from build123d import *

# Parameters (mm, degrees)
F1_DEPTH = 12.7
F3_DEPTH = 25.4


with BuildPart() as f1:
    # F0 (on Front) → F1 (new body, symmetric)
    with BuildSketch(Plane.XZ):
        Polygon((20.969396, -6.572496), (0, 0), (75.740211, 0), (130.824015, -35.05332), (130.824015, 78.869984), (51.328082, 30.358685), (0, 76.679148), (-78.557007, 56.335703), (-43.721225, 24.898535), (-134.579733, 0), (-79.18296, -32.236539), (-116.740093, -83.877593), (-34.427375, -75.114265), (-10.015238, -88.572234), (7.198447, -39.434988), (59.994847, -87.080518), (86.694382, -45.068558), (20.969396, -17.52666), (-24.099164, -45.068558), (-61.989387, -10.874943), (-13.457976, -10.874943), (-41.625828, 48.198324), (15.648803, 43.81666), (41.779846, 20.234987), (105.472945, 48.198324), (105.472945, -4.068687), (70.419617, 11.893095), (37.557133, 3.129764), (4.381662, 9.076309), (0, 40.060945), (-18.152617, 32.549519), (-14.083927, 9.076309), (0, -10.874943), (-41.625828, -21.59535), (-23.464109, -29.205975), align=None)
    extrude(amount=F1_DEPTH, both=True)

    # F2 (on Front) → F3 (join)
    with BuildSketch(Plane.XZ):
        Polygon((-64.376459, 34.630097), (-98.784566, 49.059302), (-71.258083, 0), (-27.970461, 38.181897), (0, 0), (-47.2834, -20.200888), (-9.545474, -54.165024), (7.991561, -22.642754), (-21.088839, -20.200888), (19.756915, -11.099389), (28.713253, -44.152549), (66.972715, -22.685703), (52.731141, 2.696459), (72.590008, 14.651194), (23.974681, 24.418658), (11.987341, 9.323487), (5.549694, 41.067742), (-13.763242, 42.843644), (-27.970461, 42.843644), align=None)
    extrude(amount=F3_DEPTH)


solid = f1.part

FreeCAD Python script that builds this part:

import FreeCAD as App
import Part
import Sketcher

V = App.Vector


def add_polygon(sketch, points):
    """Adds a closed chain of lines whose ends are joined by coincident constraints."""
    first, n = sketch.GeometryCount, len(points)
    for a, b in zip(points, points[1:] + points[:1]):
        sketch.addGeometry(Part.LineSegment(App.Vector(*a, 0), App.Vector(*b, 0)), False)
    for i in range(n):
        sketch.addConstraint(Sketcher.Constraint("Coincident", first + i, 2, first + (i + 1) % n, 1))

doc = App.newDocument("Part")
params = doc.addObject("Spreadsheet::Sheet", "Params")
for row, (alias, value) in enumerate([
    ("pad1_length", "1 in"),
    ("pad2_length", "1 in"),
], start=1):
    params.set(f"A{row}", alias)
    params.set(f"B{row}", "=" + value)
    params.setAlias(f"B{row}", alias)

body = doc.addObject("PartDesign::Body", "Body")

sketch1 = body.newObject("Sketcher::SketchObject", "Sketch")
sketch1.AttachmentSupport = (doc.getObject("XZ_Plane"), [""])
sketch1.MapMode = "FlatFace"
add_polygon(sketch1, [(20.969396, -6.572496), (0, 0), (75.740211, 0), (130.824015, -35.05332), (130.824015, 78.869984), (51.328082, 30.358685), (0, 76.679148), (-78.557007, 56.335703), (-43.721225, 24.898535), (-134.579733, 0), (-79.18296, -32.236539), (-116.740093, -83.877593), (-34.427375, -75.114265), (-10.015238, -88.572234), (7.198447, -39.434988), (59.994847, -87.080518), (86.694382, -45.068558), (20.969396, -17.52666), (-24.099164, -45.068558), (-61.989387, -10.874943), (-13.457976, -10.874943), (-41.625828, 48.198324), (15.648803, 43.81666), (41.779846, 20.234987), (105.472945, 48.198324), (105.472945, -4.068687), (70.419617, 11.893095), (37.557133, 3.129764), (4.381662, 9.076309), (0, 40.060945), (-18.152617, 32.549519), (-14.083927, 9.076309), (0, -10.874943), (-41.625828, -21.59535), (-23.464109, -29.205975)])
sketch1.addConstraint(Sketcher.Constraint("Horizontal", 1))
sketch1.addConstraint(Sketcher.Constraint("Vertical", 3))
sketch1.addConstraint(Sketcher.Constraint("Horizontal", 19))
sketch1.addConstraint(Sketcher.Constraint("Vertical", 24))
sketch1.addConstraint(Sketcher.Constraint("Coincident", 0, 2, -1, 1))
sketch1.addConstraint(Sketcher.Constraint("PointOnObject", 5, 2, -2))
sketch1.addConstraint(Sketcher.Constraint("PointOnObject", 8, 2, -1))
sketch1.addConstraint(Sketcher.Constraint("PointOnObject", 28, 2, -2))
sketch1.addConstraint(Sketcher.Constraint("PointOnObject", 31, 2, -2))
sketch1.addConstraint(Sketcher.Constraint("Parallel", 5, 7))
sketch1.addConstraint(Sketcher.Constraint("Parallel", 7, 14))
sketch1.addConstraint(Sketcher.Constraint("Parallel", 14, 18))
sketch1.addConstraint(Sketcher.Constraint("Parallel", 18, 22))
sketch1.addConstraint(Sketcher.Constraint("Parallel", 16, 33))
sketch1.addConstraint(Sketcher.Constraint("Horizontal", 15, 2, 17, 2))
sketch1.addConstraint(Sketcher.Constraint("Horizontal", 20, 2, 23, 2))
sketch1.addConstraint(Sketcher.Constraint("Horizontal", 27, 2, 30, 2))
sketch1.addConstraint(Sketcher.Constraint("Horizontal", 19, 2, 31, 2))
sketch1.addConstraint(Sketcher.Constraint("Vertical", 20, 2, 32, 2))
sketch1.addConstraint(Sketcher.Constraint("Vertical", 16, 2, 34, 2))
sketch1.addConstraint(Sketcher.Constraint("Distance", 14, 71.116499))
sketch1.addConstraint(Sketcher.Constraint("Distance", 16, 71.262402))
sketch1.addConstraint(Sketcher.Constraint("DistanceX", 1, 1, 1, 2, 75.740211))
sketch1.addConstraint(Sketcher.Constraint("DistanceX", 19, 1, 19, 2, 48.531411))
sketch1.addConstraint(Sketcher.Constraint("DistanceY", 24, 2, 24, 1, 52.267011))
sketch1.addConstraint(Sketcher.Constraint("DistanceY", 4, 2, 3, 2, 48.511299))
sketch1.addConstraint(Sketcher.Constraint("DistanceY", 11, 2, 7, 2, 100.0128))
sketch1.addConstraint(Sketcher.Constraint("DistanceX", 13, 2, 14, 2, 52.7964))
sketch1.addConstraint(Sketcher.Constraint("DistanceX", 4, 2, 15, 2, 35.3663))
sketch1.addConstraint(Sketcher.Constraint("DistanceY", 15, 2, 16, 2, 27.541898))
sketch1.addConstraint(Sketcher.Constraint("DistanceY", 22, 2, 4, 2, 10.123698))
sketch1.addConstraint(Sketcher.Constraint("DistanceX", 22, 2, 23, 2, 63.693099))
sketch1.addConstraint(Sketcher.Constraint("DistanceX", 32, 2, 30, 2, 27.541901))
sketch1.addConstraint(Sketcher.Constraint("Distance", 4, 93.128672))
sketch1.addConstraint(Sketcher.Constraint("Distance", 5, 69.138682))
sketch1.addConstraint(Sketcher.Constraint("Distance", 7, 46.923632))
sketch1.addConstraint(Sketcher.Constraint("Distance", 8, 94.208309))
sketch1.addConstraint(Sketcher.Constraint("Distance", 13, 52.06515))
sketch1.addConstraint(Sketcher.Constraint("Distance", 18, 51.03795))
sketch1.addConstraint(Sketcher.Constraint("Distance", 21, 57.441991))
sketch1.addConstraint(Sketcher.Constraint("Distance", 22, 35.198391))
sketch1.addConstraint(Sketcher.Constraint("Distance", 23, 69.561189))
sketch1.addConstraint(Sketcher.Constraint("Distance", 29, 19.645331))
sketch1.addConstraint(Sketcher.Constraint("Distance", 30, 23.82322))
sketch1.addConstraint(Sketcher.Constraint("DistanceY", 3, 1, 3, 2, 113.923304))
sketch1.addConstraint(Sketcher.Constraint("DistanceY", 2, 2, -1, 1, 35.05332))
sketch1.addConstraint(Sketcher.Constraint("DistanceX", 9, 2, -1, 1, 79.18296))
sketch1.addConstraint(Sketcher.Constraint("DistanceY", 9, 2, -1, 1, 32.236539))
sketch1.addConstraint(Sketcher.Constraint("DistanceY", 15, 2, -1, 1, 45.068558))
sketch1.addConstraint(Sketcher.Constraint("DistanceY", -1, 1, 27, 2, 9.076309))
sketch1.addConstraint(Sketcher.Constraint("DistanceY", -1, 1, 29, 2, 32.549519))
sketch1.addConstraint(Sketcher.Constraint("DistanceY", 32, 2, -1, 1, 21.59535))
sketch1.addConstraint(Sketcher.Constraint("DistanceX", 33, 2, -1, 1, 23.464109))
sketch1.addConstraint(Sketcher.Constraint("DistanceX", 6, 2, 4, 2, 129.885089))
sketch1.addConstraint(Sketcher.Constraint("DistanceY", 4, 2, 6, 2, 25.977018))
sketch1.addConstraint(Sketcher.Constraint("DistanceX", 8, 2, 10, 2, 17.83964))
sketch1.addConstraint(Sketcher.Constraint("DistanceY", 10, 2, 7, 2, 108.776128))
sketch1.addConstraint(Sketcher.Constraint("DistanceX", 10, 2, 11, 2, 82.312718))
sketch1.addConstraint(Sketcher.Constraint("DistanceY", 12, 2, 11, 2, 13.457969))
sketch1.addConstraint(Sketcher.Constraint("DistanceX", 9, 2, 12, 2, 69.167722))
sketch1.addConstraint(Sketcher.Constraint("DistanceX", 7, 2, 13, 2, 50.919672))
sketch1.addConstraint(Sketcher.Constraint("DistanceX", 11, 2, 17, 2, 10.328211))
sketch1.addConstraint(Sketcher.Constraint("DistanceX", 6, 2, 20, 2, 36.931179))
sketch1.addConstraint(Sketcher.Constraint("DistanceY", 25, 2, 4, 2, 18.46559))
sketch1.addConstraint(Sketcher.Constraint("DistanceX", 22, 2, 25, 2, 28.639771))
sketch1.addConstraint(Sketcher.Constraint("DistanceX", 26, 2, 4, 2, 13.770949))
sketch1.addConstraint(Sketcher.Constraint("DistanceY", 26, 2, 4, 2, 27.228921))
sketch1.addConstraint(Sketcher.Constraint("DistanceX", 19, 2, 27, 2, 17.839638))
sketch1.addConstraint(Sketcher.Constraint("DistanceY", 34, 2, 26, 2, 9.70226))
pad1 = body.newObject("PartDesign::Pad", "Pad")
pad1.Profile = sketch1
pad1.setExpression("Length", "Params.pad1_length")
pad1.Midplane = True

sketch2 = body.newObject("Sketcher::SketchObject", "Sketch001")
sketch2.AttachmentSupport = (doc.getObject("XZ_Plane"), [""])
sketch2.MapMode = "FlatFace"
add_polygon(sketch2, [(-64.376459, 34.630097), (-98.784566, 49.059302), (-71.258083, 0), (-27.970461, 38.181897), (0, 0), (-47.2834, -20.200888), (-9.545474, -54.165024), (7.991561, -22.642754), (-21.088839, -20.200888), (19.756915, -11.099389), (28.713253, -44.152549), (66.972715, -22.685703), (52.731141, 2.696459), (72.590008, 14.651194), (23.974681, 24.418658), (11.987341, 9.323487), (5.549694, 41.067742), (-13.763242, 42.843644), (-27.970461, 42.843644)])
sketch2.addConstraint(Sketcher.Constraint("Horizontal", 17))
sketch2.addConstraint(Sketcher.Constraint("Coincident", 3, 2, -1, 1))
sketch2.addConstraint(Sketcher.Constraint("PointOnObject", 1, 2, -1))
sketch2.addConstraint(Sketcher.Constraint("Perpendicular", 1, 10))
sketch2.addConstraint(Sketcher.Constraint("Perpendicular", 10, 11))
sketch2.addConstraint(Sketcher.Constraint("Horizontal", 4, 2, 7, 2))
sketch2.addConstraint(Sketcher.Constraint("Vertical", 2, 2, 17, 2))
sketch2.addConstraint(Sketcher.Constraint("Distance", 10, 43.870399))
sketch2.addConstraint(Sketcher.Constraint("DistanceX", 17, 2, 17, 1, 14.207219))
sketch2.addConstraint(Sketcher.Constraint("DistanceX", 4, 2, -1, 1, 47.2834))
sketch2.addConstraint(Sketcher.Constraint("DistanceX", 7, 2, 6, 2, 29.0804))
sketch2.addConstraint(Sketcher.Constraint("DistanceY", 7, 2, 8, 2, 9.101499))
sketch2.addConstraint(Sketcher.Constraint("DistanceX", 8, 2, 10, 2, 47.2158))
sketch2.addConstraint(Sketcher.Constraint("DistanceY", 11, 2, 13, 2, 21.722199))
sketch2.addConstraint(Sketcher.Constraint("DistanceX", 14, 2, 11, 2, 40.7438))
sketch2.addConstraint(Sketcher.Constraint("DistanceY", 15, 2, 16, 2, 1.775902))
sketch2.addConstraint(Sketcher.Constraint("DistanceY", 18, 2, 2, 2, 3.5518))
sketch2.addConstraint(Sketcher.Constraint("Distance", 0, 37.311121))
sketch2.addConstraint(Sketcher.Constraint("Distance", 5, 50.771189))
sketch2.addConstraint(Sketcher.Constraint("Distance", 7, 29.182741))
sketch2.addConstraint(Sketcher.Constraint("Distance", 11, 29.10458))
sketch2.addConstraint(Sketcher.Constraint("DistanceX", 2, 2, -1, 1, 27.970461))
sketch2.addConstraint(Sketcher.Constraint("DistanceX", -1, 1, 6, 2, 7.991561))
sketch2.addConstraint(Sketcher.Constraint("DistanceY", 8, 2, -1, 1, 11.099389))
sketch2.addConstraint(Sketcher.Constraint("DistanceY", 9, 2, -1, 1, 44.152549))
sketch2.addConstraint(Sketcher.Constraint("DistanceX", -1, 1, 11, 2, 52.731141))
sketch2.addConstraint(Sketcher.Constraint("DistanceY", -1, 1, 11, 2, 2.696459))
sketch2.addConstraint(Sketcher.Constraint("DistanceX", -1, 1, 13, 2, 23.974681))
sketch2.addConstraint(Sketcher.Constraint("DistanceX", 18, 2, -1, 1, 64.376459))
sketch2.addConstraint(Sketcher.Constraint("DistanceY", 4, 2, 0, 2, 69.26019))
sketch2.addConstraint(Sketcher.Constraint("DistanceX", 1, 2, 5, 2, 61.712609))
sketch2.addConstraint(Sketcher.Constraint("DistanceY", 5, 2, 2, 2, 92.346921))
sketch2.addConstraint(Sketcher.Constraint("DistanceY", 14, 2, 13, 2, 15.095171))
sketch2.addConstraint(Sketcher.Constraint("DistanceX", 15, 2, 8, 2, 14.207221))
sketch2.addConstraint(Sketcher.Constraint("DistanceY", 8, 2, 15, 2, 52.167131))
sketch2.addConstraint(Sketcher.Constraint("Distance", 12, 23.179523))
sketch2.addConstraint(Sketcher.Constraint("Distance", 13, 49.586827))
pad2 = body.newObject("PartDesign::Pad", "Pad001")
pad2.Profile = sketch2
pad2.setExpression("Length", "Params.pad2_length")

doc.recompute()
